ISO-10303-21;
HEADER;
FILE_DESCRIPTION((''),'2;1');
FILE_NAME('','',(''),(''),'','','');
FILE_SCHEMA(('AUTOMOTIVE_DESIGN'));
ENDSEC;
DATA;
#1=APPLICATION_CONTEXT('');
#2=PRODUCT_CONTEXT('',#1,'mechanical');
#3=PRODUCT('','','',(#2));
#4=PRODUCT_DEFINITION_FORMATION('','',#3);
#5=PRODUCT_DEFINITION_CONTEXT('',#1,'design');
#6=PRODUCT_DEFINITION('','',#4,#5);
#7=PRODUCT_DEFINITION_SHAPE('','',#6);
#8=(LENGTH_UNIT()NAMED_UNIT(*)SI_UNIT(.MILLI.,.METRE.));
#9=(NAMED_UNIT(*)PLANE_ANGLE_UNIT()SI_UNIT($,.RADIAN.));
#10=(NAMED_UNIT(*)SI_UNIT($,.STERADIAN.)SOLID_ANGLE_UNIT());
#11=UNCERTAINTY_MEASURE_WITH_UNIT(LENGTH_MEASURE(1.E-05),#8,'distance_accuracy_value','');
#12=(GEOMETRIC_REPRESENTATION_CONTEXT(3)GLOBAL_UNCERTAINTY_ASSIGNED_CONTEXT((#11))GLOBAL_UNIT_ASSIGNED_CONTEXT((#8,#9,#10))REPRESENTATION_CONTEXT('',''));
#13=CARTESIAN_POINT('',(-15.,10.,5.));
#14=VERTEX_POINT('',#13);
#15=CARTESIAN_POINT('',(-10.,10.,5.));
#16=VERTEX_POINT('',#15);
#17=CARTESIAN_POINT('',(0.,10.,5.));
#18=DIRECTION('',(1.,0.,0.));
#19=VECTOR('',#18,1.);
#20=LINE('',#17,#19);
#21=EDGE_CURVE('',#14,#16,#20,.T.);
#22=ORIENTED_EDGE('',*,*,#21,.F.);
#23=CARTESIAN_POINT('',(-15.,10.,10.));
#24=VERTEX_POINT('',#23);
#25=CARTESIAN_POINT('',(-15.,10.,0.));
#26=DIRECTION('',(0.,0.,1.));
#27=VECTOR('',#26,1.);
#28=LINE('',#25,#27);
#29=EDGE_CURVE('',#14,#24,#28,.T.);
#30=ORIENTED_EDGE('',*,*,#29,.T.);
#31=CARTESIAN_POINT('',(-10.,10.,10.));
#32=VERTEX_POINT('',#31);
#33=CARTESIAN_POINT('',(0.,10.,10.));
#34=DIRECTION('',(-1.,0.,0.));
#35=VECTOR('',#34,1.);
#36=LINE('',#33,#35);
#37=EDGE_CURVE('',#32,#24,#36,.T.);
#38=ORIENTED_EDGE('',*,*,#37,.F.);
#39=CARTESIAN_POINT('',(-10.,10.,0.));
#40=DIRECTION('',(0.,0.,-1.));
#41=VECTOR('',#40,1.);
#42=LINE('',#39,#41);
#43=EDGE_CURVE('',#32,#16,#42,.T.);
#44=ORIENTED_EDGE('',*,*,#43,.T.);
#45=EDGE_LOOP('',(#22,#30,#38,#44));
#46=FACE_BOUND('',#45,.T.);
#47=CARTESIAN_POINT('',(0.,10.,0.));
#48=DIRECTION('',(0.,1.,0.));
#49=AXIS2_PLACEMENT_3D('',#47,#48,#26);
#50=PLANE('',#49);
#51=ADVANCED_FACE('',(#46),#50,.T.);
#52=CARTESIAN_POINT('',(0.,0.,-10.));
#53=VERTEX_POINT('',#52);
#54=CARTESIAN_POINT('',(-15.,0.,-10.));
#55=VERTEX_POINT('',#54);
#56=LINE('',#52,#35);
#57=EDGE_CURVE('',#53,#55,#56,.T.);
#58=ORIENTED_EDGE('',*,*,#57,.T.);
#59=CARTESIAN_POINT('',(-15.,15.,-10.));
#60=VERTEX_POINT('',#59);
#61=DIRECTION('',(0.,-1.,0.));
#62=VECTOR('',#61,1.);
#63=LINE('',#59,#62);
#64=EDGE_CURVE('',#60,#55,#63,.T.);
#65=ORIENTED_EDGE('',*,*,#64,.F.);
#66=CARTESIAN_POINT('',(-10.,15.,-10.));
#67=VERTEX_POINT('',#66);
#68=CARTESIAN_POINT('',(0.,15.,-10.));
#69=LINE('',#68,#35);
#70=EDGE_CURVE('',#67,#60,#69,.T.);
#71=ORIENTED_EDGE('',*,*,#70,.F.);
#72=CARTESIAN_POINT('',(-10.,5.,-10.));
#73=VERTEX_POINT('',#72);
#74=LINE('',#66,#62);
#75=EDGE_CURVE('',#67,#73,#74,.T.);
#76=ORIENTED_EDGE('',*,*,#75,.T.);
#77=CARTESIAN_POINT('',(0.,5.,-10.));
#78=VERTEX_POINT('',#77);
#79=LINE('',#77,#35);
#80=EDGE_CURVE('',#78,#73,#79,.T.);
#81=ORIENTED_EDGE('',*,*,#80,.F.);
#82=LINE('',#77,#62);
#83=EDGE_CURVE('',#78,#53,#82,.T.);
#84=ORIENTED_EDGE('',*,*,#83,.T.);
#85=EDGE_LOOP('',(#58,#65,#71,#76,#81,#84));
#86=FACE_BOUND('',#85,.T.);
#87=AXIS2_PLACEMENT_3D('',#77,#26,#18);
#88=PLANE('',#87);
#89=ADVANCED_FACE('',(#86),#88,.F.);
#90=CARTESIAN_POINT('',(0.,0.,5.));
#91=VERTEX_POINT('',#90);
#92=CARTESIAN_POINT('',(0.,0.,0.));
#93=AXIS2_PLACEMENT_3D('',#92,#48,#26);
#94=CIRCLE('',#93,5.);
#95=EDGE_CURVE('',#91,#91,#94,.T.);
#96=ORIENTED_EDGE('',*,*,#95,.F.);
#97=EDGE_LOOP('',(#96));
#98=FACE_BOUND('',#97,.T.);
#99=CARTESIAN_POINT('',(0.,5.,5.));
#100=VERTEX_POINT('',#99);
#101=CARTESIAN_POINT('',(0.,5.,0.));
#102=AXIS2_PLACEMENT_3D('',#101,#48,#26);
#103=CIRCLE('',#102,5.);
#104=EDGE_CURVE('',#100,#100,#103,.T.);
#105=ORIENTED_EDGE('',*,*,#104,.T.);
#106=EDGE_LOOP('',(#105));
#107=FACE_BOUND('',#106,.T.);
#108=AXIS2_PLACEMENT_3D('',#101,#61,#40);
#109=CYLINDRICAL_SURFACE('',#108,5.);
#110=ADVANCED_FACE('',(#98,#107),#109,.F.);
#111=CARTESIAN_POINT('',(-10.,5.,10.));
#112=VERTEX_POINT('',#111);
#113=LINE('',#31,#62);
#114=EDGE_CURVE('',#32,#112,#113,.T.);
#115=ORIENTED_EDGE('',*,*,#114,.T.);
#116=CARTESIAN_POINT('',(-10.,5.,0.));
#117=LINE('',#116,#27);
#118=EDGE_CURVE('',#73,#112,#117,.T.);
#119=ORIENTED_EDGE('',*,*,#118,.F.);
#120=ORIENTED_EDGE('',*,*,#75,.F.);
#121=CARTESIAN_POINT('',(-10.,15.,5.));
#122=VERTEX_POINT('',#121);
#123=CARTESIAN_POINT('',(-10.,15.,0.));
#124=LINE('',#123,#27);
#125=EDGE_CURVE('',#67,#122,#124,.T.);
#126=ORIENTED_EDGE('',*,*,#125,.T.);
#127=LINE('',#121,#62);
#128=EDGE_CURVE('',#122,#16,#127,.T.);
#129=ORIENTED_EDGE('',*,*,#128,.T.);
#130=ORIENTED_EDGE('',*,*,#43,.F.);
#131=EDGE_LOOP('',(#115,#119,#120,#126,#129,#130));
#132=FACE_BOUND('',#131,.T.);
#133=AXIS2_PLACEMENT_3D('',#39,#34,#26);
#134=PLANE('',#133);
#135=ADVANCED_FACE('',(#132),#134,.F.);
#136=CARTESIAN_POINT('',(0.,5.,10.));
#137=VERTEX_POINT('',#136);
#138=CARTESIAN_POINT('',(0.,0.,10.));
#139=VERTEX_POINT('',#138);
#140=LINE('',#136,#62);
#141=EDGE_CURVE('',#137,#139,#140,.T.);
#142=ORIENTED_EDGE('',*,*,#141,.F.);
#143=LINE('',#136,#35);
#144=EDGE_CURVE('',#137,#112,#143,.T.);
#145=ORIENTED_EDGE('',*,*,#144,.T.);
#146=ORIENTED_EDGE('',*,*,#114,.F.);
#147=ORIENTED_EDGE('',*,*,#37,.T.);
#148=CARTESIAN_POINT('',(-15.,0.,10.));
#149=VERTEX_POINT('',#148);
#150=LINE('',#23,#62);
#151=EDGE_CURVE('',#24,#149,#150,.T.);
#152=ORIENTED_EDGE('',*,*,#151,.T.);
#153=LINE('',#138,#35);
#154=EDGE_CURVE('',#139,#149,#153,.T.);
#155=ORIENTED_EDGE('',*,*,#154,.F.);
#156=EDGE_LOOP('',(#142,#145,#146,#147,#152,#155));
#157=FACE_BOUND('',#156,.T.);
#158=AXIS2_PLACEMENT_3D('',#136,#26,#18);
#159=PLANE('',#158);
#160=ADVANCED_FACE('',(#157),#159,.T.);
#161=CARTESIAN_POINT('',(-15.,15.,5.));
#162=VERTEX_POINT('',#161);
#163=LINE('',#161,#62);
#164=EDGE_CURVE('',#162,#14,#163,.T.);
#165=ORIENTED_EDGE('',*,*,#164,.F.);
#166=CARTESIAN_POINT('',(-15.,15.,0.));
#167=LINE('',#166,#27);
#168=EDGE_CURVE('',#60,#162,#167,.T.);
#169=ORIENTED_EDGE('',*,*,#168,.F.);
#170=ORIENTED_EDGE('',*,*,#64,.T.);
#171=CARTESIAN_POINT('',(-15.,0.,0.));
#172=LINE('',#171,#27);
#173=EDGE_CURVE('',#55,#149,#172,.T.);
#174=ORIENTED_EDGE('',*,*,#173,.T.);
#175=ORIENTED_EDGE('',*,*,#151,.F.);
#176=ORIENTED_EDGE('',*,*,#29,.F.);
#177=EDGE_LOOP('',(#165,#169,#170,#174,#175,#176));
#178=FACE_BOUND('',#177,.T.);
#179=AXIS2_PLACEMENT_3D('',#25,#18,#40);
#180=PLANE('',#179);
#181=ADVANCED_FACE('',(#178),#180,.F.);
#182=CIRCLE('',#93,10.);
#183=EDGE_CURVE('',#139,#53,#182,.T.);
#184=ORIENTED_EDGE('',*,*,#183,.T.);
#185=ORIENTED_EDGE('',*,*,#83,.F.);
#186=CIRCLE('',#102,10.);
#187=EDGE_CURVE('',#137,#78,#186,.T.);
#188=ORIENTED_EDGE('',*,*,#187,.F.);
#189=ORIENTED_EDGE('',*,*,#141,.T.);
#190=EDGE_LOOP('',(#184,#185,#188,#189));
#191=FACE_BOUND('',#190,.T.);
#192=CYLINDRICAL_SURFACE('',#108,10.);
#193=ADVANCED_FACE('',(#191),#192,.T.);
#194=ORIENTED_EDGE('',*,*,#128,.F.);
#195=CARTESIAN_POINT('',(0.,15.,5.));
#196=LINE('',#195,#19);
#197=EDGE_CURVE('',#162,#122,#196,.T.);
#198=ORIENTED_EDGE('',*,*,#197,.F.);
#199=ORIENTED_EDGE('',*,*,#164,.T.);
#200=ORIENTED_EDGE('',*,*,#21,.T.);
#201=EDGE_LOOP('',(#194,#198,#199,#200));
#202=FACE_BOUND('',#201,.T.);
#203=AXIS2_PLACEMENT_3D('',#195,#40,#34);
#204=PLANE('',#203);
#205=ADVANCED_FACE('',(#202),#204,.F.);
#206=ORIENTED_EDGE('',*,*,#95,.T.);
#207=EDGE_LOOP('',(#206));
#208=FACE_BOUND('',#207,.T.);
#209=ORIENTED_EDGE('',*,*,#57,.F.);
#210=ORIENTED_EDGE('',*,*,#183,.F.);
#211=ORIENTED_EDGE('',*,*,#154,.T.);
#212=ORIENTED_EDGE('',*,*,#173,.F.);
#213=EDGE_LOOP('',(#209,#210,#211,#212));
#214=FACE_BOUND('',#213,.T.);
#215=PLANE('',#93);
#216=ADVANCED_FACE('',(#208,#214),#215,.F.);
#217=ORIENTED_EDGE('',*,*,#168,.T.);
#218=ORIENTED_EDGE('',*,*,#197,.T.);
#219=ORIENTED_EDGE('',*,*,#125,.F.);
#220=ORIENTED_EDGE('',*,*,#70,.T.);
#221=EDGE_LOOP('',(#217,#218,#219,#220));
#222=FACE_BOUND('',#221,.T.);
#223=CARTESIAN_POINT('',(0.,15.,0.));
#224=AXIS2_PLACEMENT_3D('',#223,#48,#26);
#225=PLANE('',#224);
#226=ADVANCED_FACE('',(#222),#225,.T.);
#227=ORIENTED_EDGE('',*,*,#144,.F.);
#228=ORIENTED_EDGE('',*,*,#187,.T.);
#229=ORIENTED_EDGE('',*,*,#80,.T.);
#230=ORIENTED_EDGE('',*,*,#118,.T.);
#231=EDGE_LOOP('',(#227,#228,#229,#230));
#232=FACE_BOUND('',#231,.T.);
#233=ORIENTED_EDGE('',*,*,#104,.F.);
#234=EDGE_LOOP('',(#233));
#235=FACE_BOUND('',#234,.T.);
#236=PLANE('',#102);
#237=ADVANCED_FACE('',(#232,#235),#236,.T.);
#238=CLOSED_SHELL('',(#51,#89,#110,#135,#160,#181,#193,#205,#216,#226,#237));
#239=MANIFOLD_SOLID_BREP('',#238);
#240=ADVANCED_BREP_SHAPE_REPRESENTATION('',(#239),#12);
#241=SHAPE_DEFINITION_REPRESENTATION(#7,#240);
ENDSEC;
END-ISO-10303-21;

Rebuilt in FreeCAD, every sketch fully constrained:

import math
import FreeCAD as App
import Part
import Sketcher

V = App.Vector
Q = App.Units.Quantity


def add_polygon(sketch, points):
    """Adds a closed chain of lines whose ends are joined by coincident constraints."""
    first, n = sketch.GeometryCount, len(points)
    for a, b in zip(points, points[1:] + points[:1]):
        sketch.addGeometry(Part.LineSegment(App.Vector(*a, 0), App.Vector(*b, 0)), False)
    for i in range(n):
        sketch.addConstraint(Sketcher.Constraint("Coincident", first + i, 2, first + (i + 1) % n, 1))

doc = App.newDocument("Part")
body = doc.addObject("PartDesign::Body", "Body")

# Sketch on XZ plane
sketch1 = body.newObject("Sketcher::SketchObject", "Sketch")
sketch1.AttachmentSupport = (doc.getObject("XZ_Plane"), [""])
sketch1.MapMode = "FlatFace"
sketch1.addGeometry([
    Part.ArcOfCircle(Part.Circle(V(0, 0, 0), V(0, 0, 1), 10), math.radians(-90), math.radians(90)),  # 0
    Part.LineSegment(V(0, -10, 0), V(-10, -10, 0)),  # 1
    Part.LineSegment(V(-10, -10, 0), V(-10, 10, 0)),  # 2
    Part.LineSegment(V(-10, 10, 0), V(0, 10, 0)),  # 3
    Part.Circle(V(0, 0, 0), V(0, 0, 1), 5),  # 4
], False)
sketch1.addConstraint([
    Sketcher.Constraint("Tangent", 0, 1, 1, 1),
    Sketcher.Constraint("Coincident", 1, 2, 2, 1),
    Sketcher.Constraint("Coincident", 2, 2, 3, 1),
    Sketcher.Constraint("Tangent", 3, 2, 0, 2),
    Sketcher.Constraint("Horizontal", 1),
    Sketcher.Constraint("Vertical", 2),
    Sketcher.Constraint("Horizontal", 3),
    Sketcher.Constraint("Coincident", 0, 3, -1, 1),
    Sketcher.Constraint("Coincident", 4, 3, -1, 1),
    Sketcher.Constraint("Diameter", 4, Q("10 mm")),
    Sketcher.Constraint("Radius", 0, Q("10 mm")),
    Sketcher.Constraint("DistanceX", 1, 2, 1, 1, Q("10 mm")),
])
pad1 = body.newObject("PartDesign::Pad", "Pad")
pad1.Profile = sketch1
pad1.Length = 5
pad1.Reversed = True

# Sketch on XZ plane
sketch2 = body.newObject("Sketcher::SketchObject", "Sketch001")
sketch2.AttachmentSupport = (doc.getObject("XZ_Plane"), [""])
sketch2.MapMode = "FlatFace"
add_polygon(sketch2, [(-15, 5), (-15, 10), (-10, 10), (-10, 5)])  # lines 0-3
sketch2.addConstraint([
    Sketcher.Constraint("Vertical", 0),
    Sketcher.Constraint("Horizontal", 1),
    Sketcher.Constraint("Vertical", 2),
    Sketcher.Constraint("Horizontal", 3),
    Sketcher.Constraint("Equal", 3, 0),
    Sketcher.Constraint("DistanceX", 1, 1, 1, 2, Q("5 mm")),
    Sketcher.Constraint("DistanceX", 0, 2, -1, 1, Q("15 mm")),
    Sketcher.Constraint("DistanceY", -1, 1, 0, 2, Q("10 mm")),
])
pad2 = body.newObject("PartDesign::Pad", "Pad001")
pad2.Profile = sketch2
pad2.Length = 10
pad2.Reversed = True

# Sketch on XZ plane
sketch3 = body.newObject("Sketcher::SketchObject", "Sketch002")
sketch3.AttachmentSupport = (doc.getObject("XZ_Plane"), [""])
sketch3.MapMode = "FlatFace"
add_polygon(sketch3, [(-15, -10), (-15, 5), (-10, 5), (-10, -10)])  # lines 0-3
sketch3.addConstraint([
    Sketcher.Constraint("Vertical", 0),
    Sketcher.Constraint("Horizontal", 1),
    Sketcher.Constraint("Vertical", 2),
    Sketcher.Constraint("Horizontal", 3),
    Sketcher.Constraint("DistanceX", 1, 1, 1, 2, Q("5 mm")),
    Sketcher.Constraint("DistanceY", 0, 1, 0, 2, Q("15 mm")),
    Sketcher.Constraint("DistanceX", 0, 2, -1, 1, Q("15 mm")),
    Sketcher.Constraint("DistanceY", -1, 1, 0, 2, Q("5 mm")),
])
pad3 = body.newObject("PartDesign::Pad", "Pad002")
pad3.Profile = sketch3
pad3.Length = 15
pad3.Reversed = True

doc.recompute()
